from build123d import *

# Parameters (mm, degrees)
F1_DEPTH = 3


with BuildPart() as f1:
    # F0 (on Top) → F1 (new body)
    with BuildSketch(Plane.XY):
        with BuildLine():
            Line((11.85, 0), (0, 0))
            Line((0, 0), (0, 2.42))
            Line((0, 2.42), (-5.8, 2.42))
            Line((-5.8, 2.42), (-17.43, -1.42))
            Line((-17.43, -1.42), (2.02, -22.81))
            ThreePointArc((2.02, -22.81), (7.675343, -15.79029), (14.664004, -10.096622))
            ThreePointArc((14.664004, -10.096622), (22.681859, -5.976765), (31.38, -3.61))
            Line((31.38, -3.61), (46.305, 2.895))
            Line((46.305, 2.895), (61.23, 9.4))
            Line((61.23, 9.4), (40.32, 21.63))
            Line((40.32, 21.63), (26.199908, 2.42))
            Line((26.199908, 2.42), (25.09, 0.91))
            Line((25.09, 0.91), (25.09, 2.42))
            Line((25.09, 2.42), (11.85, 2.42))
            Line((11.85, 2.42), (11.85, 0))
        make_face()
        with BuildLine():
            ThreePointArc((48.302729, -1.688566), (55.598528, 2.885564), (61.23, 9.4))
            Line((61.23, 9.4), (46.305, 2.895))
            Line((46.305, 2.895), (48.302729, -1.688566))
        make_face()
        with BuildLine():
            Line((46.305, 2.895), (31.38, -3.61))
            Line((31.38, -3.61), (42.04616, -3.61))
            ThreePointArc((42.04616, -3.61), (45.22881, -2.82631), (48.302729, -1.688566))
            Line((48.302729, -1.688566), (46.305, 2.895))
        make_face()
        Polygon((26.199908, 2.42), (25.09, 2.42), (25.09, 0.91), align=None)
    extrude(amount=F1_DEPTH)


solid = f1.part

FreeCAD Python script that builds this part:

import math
import FreeCAD as App
import Part
import Sketcher
from FreeCAD import Vector

doc = App.newDocument("Part")
body = doc.addObject("PartDesign::Body", "Body")

# Sketch on XY plane
sketch1 = body.newObject("Sketcher::SketchObject", "Sketch")
sketch1.AttachmentSupport = (doc.getObject("XY_Plane"), [""])
sketch1.MapMode = "FlatFace"
sketch1.addGeometry(Part.LineSegment(Vector(11.85, 0, 0), Vector(0, 0, 0)), False)
sketch1.addGeometry(Part.LineSegment(Vector(0, 0, 0), Vector(0, 2.42, 0)), False)
sketch1.addGeometry(Part.LineSegment(Vector(0, 2.42, 0), Vector(-5.8, 2.42, 0)), False)
sketch1.addGeometry(Part.LineSegment(Vector(-5.8, 2.42, 0), Vector(-17.43, -1.42, 0)), False)
sketch1.addGeometry(Part.LineSegment(Vector(-17.43, -1.42, 0), Vector(2.02, -22.81, 0)), False)
sketch1.addGeometry(Part.ArcOfCircle(Part.Circle(Vector(38.314647, -46.262402, 0), Vector(0, 0, 1), 43.212458), math.radians(123.182714), math.radians(147.130791)), False)
sketch1.addGeometry(Part.ArcOfCircle(Part.Circle(Vector(38.314658, -46.262416, 0), Vector(0, 0, 1), 43.212476), math.radians(99.23465), math.radians(123.182715)), False)
sketch1.addGeometry(Part.LineSegment(Vector(31.38, -3.61, 0), Vector(42.04616, -3.61, 0)), False)
sketch1.addGeometry(Part.ArcOfCircle(Part.Circle(Vector(36.713094, 24.902547, 0), Vector(0, 0, 1), 29.007016), math.radians(-79.405654), math.radians(-66.450204)), False)
sketch1.addGeometry(Part.ArcOfCircle(Part.Circle(Vector(36.713077, 24.902599, 0), Vector(0, 0, 1), 29.00707), math.radians(-66.450215), math.radians(-32.306083)), False)
sketch1.addGeometry(Part.LineSegment(Vector(61.23, 9.4, 0), Vector(40.32, 21.63, 0)), False)
sketch1.addGeometry(Part.LineSegment(Vector(40.32, 21.63, 0), Vector(26.199908, 2.42, 0)), False)
sketch1.addGeometry(Part.LineSegment(Vector(26.199908, 2.42, 0), Vector(11.85, 2.42, 0)), False)
sketch1.addGeometry(Part.LineSegment(Vector(11.85, 2.42, 0), Vector(11.85, 0, 0)), False)
sketch1.addConstraint(Sketcher.Constraint("Coincident", 0, 2, 1, 1))
sketch1.addConstraint(Sketcher.Constraint("Coincident", 1, 2, 2, 1))
sketch1.addConstraint(Sketcher.Constraint("Coincident", 2, 2, 3, 1))
sketch1.addConstraint(Sketcher.Constraint("Coincident", 3, 2, 4, 1))
sketch1.addConstraint(Sketcher.Constraint("Coincident", 4, 2, 5, 2))
sketch1.addConstraint(Sketcher.Constraint("Tangent", 5, 1, 6, 2))
sketch1.addConstraint(Sketcher.Constraint("Coincident", 6, 1, 7, 1))
sketch1.addConstraint(Sketcher.Constraint("Coincident", 7, 2, 8, 1))
sketch1.addConstraint(Sketcher.Constraint("Tangent", 8, 2, 9, 1))
sketch1.addConstraint(Sketcher.Constraint("Coincident", 9, 2, 10, 1))
sketch1.addConstraint(Sketcher.Constraint("Coincident", 10, 2, 11, 1))
sketch1.addConstraint(Sketcher.Constraint("Coincident", 11, 2, 12, 1))
sketch1.addConstraint(Sketcher.Constraint("Coincident", 12, 2, 13, 1))
sketch1.addConstraint(Sketcher.Constraint("Coincident", 13, 2, 0, 1))
sketch1.addConstraint(Sketcher.Constraint("Horizontal", 0))
sketch1.addConstraint(Sketcher.Constraint("Vertical", 1))
sketch1.addConstraint(Sketcher.Constraint("Horizontal", 2))
sketch1.addConstraint(Sketcher.Constraint("Horizontal", 7))
sketch1.addConstraint(Sketcher.Constraint("Horizontal", 12))
sketch1.addConstraint(Sketcher.Constraint("Vertical", 13))
sketch1.addConstraint(Sketcher.Constraint("Coincident", 0, 2, -1, 1))
sketch1.addConstraint(Sketcher.Constraint("Horizontal", 2, 2, 11, 2))
sketch1.addConstraint(Sketcher.Constraint("DistanceX", 2, 2, 2, 1, 5.8))
sketch1.addConstraint(Sketcher.Constraint("DistanceX", 0, 2, 0, 1, 11.85))
sketch1.addConstraint(Sketcher.Constraint("DistanceY", 1, 1, 1, 2, 2.42))
sketch1.addConstraint(Sketcher.Constraint("DistanceY", -1, 1, 9, 2, 9.4))
sketch1.addConstraint(Sketcher.Constraint("DistanceX", 3, 2, -1, 1, 17.43))
sketch1.addConstraint(Sketcher.Constraint("DistanceY", 3, 2, -1, 1, 1.42))
sketch1.addConstraint(Sketcher.Constraint("DistanceX", -1, 1, 4, 2, 2.02))
sketch1.addConstraint(Sketcher.Constraint("DistanceY", 4, 2, -1, 1, 22.81))
sketch1.addConstraint(Sketcher.Constraint("DistanceX", -1, 1, 6, 1, 31.38))
sketch1.addConstraint(Sketcher.Constraint("DistanceY", 6, 1, -1, 1, 3.61))
sketch1.addConstraint(Sketcher.Constraint("DistanceX", -1, 1, 9, 2, 61.23))
sketch1.addConstraint(Sketcher.Constraint("DistanceX", -1, 1, 10, 2, 40.32))
sketch1.addConstraint(Sketcher.Constraint("DistanceY", -1, 1, 10, 2, 21.63))
sketch1.addConstraint(Sketcher.Constraint("Radius", 5, 43.212458))
sketch1.addConstraint(Sketcher.Constraint("Radius", 9, 29.00707))
sketch1.addConstraint(Sketcher.Constraint("Radius", 6, 43.212476))
sketch1.addConstraint(Sketcher.Constraint("Radius", 8, 29.007016))
sketch1.addConstraint(Sketcher.Constraint("DistanceY", 5, 3, 9, 3, 71.165001))
sketch1.addConstraint(Sketcher.Constraint("DistanceX", 12, 2, 12, 1, 14.349908))
sketch1.addConstraint(Sketcher.Constraint("DistanceY", 5, 1, -1, 1, 10.096622))
sketch1.addConstraint(Sketcher.Constraint("DistanceX", -1, 1, 8, 2, 48.302729))
pad1 = body.newObject("PartDesign::Pad", "Pad")
pad1.Profile = sketch1
pad1.Length = 3

doc.recompute()
